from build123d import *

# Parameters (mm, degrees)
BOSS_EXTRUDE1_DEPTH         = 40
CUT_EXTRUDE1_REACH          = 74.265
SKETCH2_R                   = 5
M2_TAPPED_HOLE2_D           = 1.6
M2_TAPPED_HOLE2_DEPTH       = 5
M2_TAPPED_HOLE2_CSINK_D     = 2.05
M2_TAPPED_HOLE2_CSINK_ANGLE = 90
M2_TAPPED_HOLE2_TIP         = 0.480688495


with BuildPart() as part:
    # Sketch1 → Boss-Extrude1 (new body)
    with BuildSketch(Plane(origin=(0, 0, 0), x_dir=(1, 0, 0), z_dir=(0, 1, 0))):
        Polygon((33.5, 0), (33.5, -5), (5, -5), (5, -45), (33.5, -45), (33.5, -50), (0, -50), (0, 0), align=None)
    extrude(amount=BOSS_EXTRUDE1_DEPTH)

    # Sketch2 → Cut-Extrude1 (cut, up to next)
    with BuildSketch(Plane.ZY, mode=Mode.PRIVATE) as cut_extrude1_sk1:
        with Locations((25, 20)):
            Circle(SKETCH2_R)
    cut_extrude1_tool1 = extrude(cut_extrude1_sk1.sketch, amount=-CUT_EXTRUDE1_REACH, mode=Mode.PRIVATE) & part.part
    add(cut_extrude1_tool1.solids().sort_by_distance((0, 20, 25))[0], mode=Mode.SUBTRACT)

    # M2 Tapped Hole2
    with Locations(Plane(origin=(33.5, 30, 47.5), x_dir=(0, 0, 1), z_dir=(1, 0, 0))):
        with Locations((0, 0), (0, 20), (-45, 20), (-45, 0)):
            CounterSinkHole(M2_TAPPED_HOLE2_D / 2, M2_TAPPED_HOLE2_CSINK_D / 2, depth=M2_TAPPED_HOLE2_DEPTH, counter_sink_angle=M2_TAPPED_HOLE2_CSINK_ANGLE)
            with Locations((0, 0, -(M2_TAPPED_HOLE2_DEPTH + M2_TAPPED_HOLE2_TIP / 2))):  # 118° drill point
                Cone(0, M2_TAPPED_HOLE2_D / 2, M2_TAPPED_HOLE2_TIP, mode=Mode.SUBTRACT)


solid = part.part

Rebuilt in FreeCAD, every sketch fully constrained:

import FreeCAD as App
import Part
import Sketcher
from FreeCAD import Vector

doc = App.newDocument("Part")
body = doc.addObject("PartDesign::Body", "Body")

sketch1 = doc.addObject("Sketcher::SketchObject", "Sketch")
body.addObject(sketch1)
sketch1.AttachmentSupport = (doc.XZ_Plane, [""])
sketch1.MapMode = "FlatFace"
sketch1.addGeometry([
    Part.LineSegment(Vector(33.5, 5, 0), Vector(33.5, 0, 0)),
    Part.LineSegment(Vector(33.5, 0, 0), Vector(0, 0, 0)),
    Part.LineSegment(Vector(0, 0, 0), Vector(0, 50, 0)),
    Part.LineSegment(Vector(0, 50, 0), Vector(33.5, 50, 0)),
    Part.LineSegment(Vector(33.5, 50, 0), Vector(33.5, 45, 0)),
    Part.LineSegment(Vector(33.5, 45, 0), Vector(5, 45, 0)),
    Part.LineSegment(Vector(5, 45, 0), Vector(5, 5, 0)),
    Part.LineSegment(Vector(5, 5, 0), Vector(33.5, 5, 0)),
], False)
sketch1.addConstraint([
    Sketcher.Constraint("Coincident", 0, 2, 1, 1),
    Sketcher.Constraint("Coincident", 1, 2, 2, 1),
    Sketcher.Constraint("Coincident", 2, 2, 3, 1),
    Sketcher.Constraint("Coincident", 3, 2, 4, 1),
    Sketcher.Constraint("Coincident", 4, 2, 5, 1),
    Sketcher.Constraint("Coincident", 5, 2, 6, 1),
    Sketcher.Constraint("Coincident", 6, 2, 7, 1),
    Sketcher.Constraint("Coincident", 7, 2, 0, 1),
    Sketcher.Constraint("Vertical", 0),
    Sketcher.Constraint("Horizontal", 1),
    Sketcher.Constraint("Vertical", 2),
    Sketcher.Constraint("Horizontal", 3),
    Sketcher.Constraint("Vertical", 4),
    Sketcher.Constraint("Horizontal", 5),
    Sketcher.Constraint("Vertical", 6),
    Sketcher.Constraint("Horizontal", 7),
    Sketcher.Constraint("Coincident", 1, 2, -1, 1),
    Sketcher.Constraint("Vertical", 0, 2, 3, 2),
    Sketcher.Constraint("Equal", 0, 4),
    Sketcher.Constraint("DistanceY", 0, 2, 0, 1, 5.0),
    Sketcher.Constraint("DistanceY", 2, 1, 2, 2, 50.0),
    Sketcher.Constraint("DistanceX", 1, 2, 1, 1, 33.5),
    Sketcher.Constraint("DistanceX", 5, 2, 5, 1, 28.5),
])
pad1 = doc.addObject("PartDesign::Pad", "Pad")
body.addObject(pad1)
pad1.Profile = sketch1
pad1.Length = 40
pad1.Reversed = True

sketch2 = doc.addObject("Sketcher::SketchObject", "Sketch001")
body.addObject(sketch2)
sketch2.AttachmentSupport = (doc.YZ_Plane, [""])
sketch2.MapMode = "FlatFace"
sketch2.addGeometry(Part.Circle(Vector(20, 25, 0), Vector(0, 0, 1), 5), False)
sketch2.addConstraint([
    Sketcher.Constraint("Diameter", 0, 10.0),
    Sketcher.Constraint("DistanceX", -1, 1, 0, 3, 20.0),
    Sketcher.Constraint("DistanceY", -1, 1, 0, 3, 25.0),
])
pocket1 = doc.addObject("PartDesign::Pocket", "Pocket")
body.addObject(pocket1)
pocket1.Profile = sketch2
pocket1.Type = "UpToFirst"
pocket1.Reversed = True

sketch3 = doc.addObject("Sketcher::SketchObject", "Sketch002")
body.addObject(sketch3)
sketch3.AttachmentSupport = (doc.YZ_Plane, [""])
sketch3.MapMode = "FlatFace"
sketch3.AttachmentOffset = App.Placement(Vector(0, 0, 33.5), App.Rotation())
sketch3.addGeometry([
    Part.Circle(Vector(30, 47.5, 0), Vector(0, 0, 1), 0.8),
    Part.Circle(Vector(10, 47.5, 0), Vector(0, 0, 1), 0.8),
    Part.Circle(Vector(10, 2.5, 0), Vector(0, 0, 1), 0.8),
    Part.Circle(Vector(30, 2.5, 0), Vector(0, 0, 1), 0.8),
], False)
sketch3.addConstraint([
    Sketcher.Constraint("Equal", 0, 1),
    Sketcher.Constraint("Equal", 1, 2),
    Sketcher.Constraint("Equal", 2, 3),
    Sketcher.Constraint("Horizontal", 0, 3, 1, 3),
    Sketcher.Constraint("Horizontal", 2, 3, 3, 3),
    Sketcher.Constraint("Vertical", 1, 3, 2, 3),
    Sketcher.Constraint("Vertical", 0, 3, 3, 3),
    Sketcher.Constraint("Diameter", 0, 1.6),
    Sketcher.Constraint("DistanceX", -1, 1, 0, 3, 30.0),
    Sketcher.Constraint("DistanceX", -1, 1, 1, 3, 10.0),
    Sketcher.Constraint("DistanceY", 2, 3, 1, 3, 45.0),
    Sketcher.Constraint("DistanceY", -1, 1, 0, 3, 47.5),
])
doc.recompute()
hole = doc.addObject("PartDesign::Hole", "Hole")
body.addObject(hole)
hole.Profile = sketch3
hole.ThreadType = "None"
hole.Diameter = 1.6
hole.DepthType = "Dimension"
hole.Depth = 5
hole.DrillPoint = "Angled"
hole.DrillPointAngle = 118
hole.HoleCutType = "Countersink"
hole.HoleCutDiameter = 2.05
hole.HoleCutCountersinkAngle = 90

doc.recompute()
